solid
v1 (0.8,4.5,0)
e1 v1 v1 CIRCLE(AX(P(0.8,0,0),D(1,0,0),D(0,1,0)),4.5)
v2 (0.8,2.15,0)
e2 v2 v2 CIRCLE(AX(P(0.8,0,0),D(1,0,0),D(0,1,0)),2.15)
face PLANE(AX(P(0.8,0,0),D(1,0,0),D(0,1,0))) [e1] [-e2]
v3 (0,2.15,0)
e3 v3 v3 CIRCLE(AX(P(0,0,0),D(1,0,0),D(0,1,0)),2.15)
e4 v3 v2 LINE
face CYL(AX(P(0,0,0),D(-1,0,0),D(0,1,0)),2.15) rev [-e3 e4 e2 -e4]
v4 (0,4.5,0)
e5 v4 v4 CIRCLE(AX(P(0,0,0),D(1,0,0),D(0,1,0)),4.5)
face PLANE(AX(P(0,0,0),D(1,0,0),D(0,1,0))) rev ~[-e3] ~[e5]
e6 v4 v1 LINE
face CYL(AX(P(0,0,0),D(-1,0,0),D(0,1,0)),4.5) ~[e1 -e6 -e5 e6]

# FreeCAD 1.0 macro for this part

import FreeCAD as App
import Part
import Sketcher

V = App.Vector
Q = App.Units.Quantity

doc = App.newDocument("Part")
body = doc.addObject("PartDesign::Body", "Body")

# Sketch on YZ plane
sketch1 = body.newObject("Sketcher::SketchObject", "Sketch")
sketch1.AttachmentSupport = (doc.getObject("YZ_Plane"), [""])
sketch1.MapMode = "FlatFace"
sketch1.addGeometry([
    Part.Circle(V(0, 0, 0), V(0, 0, 1), 4.5),
    Part.Circle(V(0, 0, 0), V(0, 0, 1), 2.1),
], False)
sketch1.addConstraint([
    Sketcher.Constraint("Coincident", 0, 3, -1, 1),
    Sketcher.Constraint("Coincident", 1, 3, -1, 1),
    Sketcher.Constraint("Diameter", 0, Q("9 mm")),
    Sketcher.Constraint("Diameter", 1, Q("4.3 mm")),
])
pad1 = body.newObject("PartDesign::Pad", "Pad")
pad1.Profile = sketch1
pad1.Length = 0.8

doc.recompute()
